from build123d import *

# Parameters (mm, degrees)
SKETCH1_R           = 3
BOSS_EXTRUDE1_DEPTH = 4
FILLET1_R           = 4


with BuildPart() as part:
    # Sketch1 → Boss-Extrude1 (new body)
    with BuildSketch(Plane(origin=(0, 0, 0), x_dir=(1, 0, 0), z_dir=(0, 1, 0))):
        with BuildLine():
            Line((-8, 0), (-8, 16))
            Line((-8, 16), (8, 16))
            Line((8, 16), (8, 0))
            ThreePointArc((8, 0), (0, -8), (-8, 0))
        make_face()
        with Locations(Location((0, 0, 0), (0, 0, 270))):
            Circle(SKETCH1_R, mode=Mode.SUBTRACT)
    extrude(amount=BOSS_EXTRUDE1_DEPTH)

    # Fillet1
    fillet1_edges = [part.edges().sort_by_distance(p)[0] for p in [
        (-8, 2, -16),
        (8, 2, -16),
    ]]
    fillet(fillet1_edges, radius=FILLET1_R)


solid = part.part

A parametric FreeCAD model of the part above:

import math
import FreeCAD as App
import Part
import Sketcher
Q = App.Units.Quantity


def edges_at(feature, points):
    """Names of the edges that pass closest to the given points."""
    edges = feature.Shape.Edges
    near = lambda p: min(range(len(edges)), key=lambda i: edges[i].distToShape(Part.Vertex(*p))[0])
    return sorted({f"Edge{near(p) + 1}" for p in points})

doc = App.newDocument("Part")
body = doc.addObject("PartDesign::Body", "Body")

sketch1 = body.newObject("Sketcher::SketchObject", "Sketch")
sketch1.AttachmentSupport = (doc.getObject("XZ_Plane"), [""])
sketch1.MapMode = "FlatFace"
sketch1.addGeometry([
    Part.LineSegment(App.Vector(-8, -16, 0), App.Vector(-8, 0, 0)),
    Part.ArcOfCircle(Part.Circle(App.Vector(0, 0, 0), App.Vector(0, 0, 1), 8), math.radians(0), math.radians(180)),
    Part.LineSegment(App.Vector(8, 0, 0), App.Vector(8, -16, 0)),
    Part.LineSegment(App.Vector(8, -16, 0), App.Vector(-8, -16, 0)),
    Part.Circle(App.Vector(0, 0, 0), App.Vector(0, 0, 1), 3),
], False)
sketch1.addConstraint([
    Sketcher.Constraint("Tangent", 0, 2, 1, 2),
    Sketcher.Constraint("Tangent", 1, 1, 2, 1),
    Sketcher.Constraint("Coincident", 2, 2, 3, 1),
    Sketcher.Constraint("Coincident", 3, 2, 0, 1),
    Sketcher.Constraint("Vertical", 0),
    Sketcher.Constraint("Vertical", 2),
    Sketcher.Constraint("Horizontal", 3),
    Sketcher.Constraint("Coincident", 1, 3, -1, 1),
    Sketcher.Constraint("Coincident", 4, 3, -1, 1),
    Sketcher.Constraint("Equal", 3, 0),
    Sketcher.Constraint("Diameter", 4, Q("6 mm")),
    Sketcher.Constraint("Radius", 1, Q("8 mm")),
])
pad1 = body.newObject("PartDesign::Pad", "Pad")
pad1.Profile = sketch1
pad1.Length = 4
pad1.Reversed = True
doc.recompute()

fillet = body.newObject("PartDesign::Fillet", "Fillet")
fillet.Base = (pad1, edges_at(pad1, [(-8, 2, -16), (8, 2, -16)]))
fillet.Radius = 4

doc.recompute()
